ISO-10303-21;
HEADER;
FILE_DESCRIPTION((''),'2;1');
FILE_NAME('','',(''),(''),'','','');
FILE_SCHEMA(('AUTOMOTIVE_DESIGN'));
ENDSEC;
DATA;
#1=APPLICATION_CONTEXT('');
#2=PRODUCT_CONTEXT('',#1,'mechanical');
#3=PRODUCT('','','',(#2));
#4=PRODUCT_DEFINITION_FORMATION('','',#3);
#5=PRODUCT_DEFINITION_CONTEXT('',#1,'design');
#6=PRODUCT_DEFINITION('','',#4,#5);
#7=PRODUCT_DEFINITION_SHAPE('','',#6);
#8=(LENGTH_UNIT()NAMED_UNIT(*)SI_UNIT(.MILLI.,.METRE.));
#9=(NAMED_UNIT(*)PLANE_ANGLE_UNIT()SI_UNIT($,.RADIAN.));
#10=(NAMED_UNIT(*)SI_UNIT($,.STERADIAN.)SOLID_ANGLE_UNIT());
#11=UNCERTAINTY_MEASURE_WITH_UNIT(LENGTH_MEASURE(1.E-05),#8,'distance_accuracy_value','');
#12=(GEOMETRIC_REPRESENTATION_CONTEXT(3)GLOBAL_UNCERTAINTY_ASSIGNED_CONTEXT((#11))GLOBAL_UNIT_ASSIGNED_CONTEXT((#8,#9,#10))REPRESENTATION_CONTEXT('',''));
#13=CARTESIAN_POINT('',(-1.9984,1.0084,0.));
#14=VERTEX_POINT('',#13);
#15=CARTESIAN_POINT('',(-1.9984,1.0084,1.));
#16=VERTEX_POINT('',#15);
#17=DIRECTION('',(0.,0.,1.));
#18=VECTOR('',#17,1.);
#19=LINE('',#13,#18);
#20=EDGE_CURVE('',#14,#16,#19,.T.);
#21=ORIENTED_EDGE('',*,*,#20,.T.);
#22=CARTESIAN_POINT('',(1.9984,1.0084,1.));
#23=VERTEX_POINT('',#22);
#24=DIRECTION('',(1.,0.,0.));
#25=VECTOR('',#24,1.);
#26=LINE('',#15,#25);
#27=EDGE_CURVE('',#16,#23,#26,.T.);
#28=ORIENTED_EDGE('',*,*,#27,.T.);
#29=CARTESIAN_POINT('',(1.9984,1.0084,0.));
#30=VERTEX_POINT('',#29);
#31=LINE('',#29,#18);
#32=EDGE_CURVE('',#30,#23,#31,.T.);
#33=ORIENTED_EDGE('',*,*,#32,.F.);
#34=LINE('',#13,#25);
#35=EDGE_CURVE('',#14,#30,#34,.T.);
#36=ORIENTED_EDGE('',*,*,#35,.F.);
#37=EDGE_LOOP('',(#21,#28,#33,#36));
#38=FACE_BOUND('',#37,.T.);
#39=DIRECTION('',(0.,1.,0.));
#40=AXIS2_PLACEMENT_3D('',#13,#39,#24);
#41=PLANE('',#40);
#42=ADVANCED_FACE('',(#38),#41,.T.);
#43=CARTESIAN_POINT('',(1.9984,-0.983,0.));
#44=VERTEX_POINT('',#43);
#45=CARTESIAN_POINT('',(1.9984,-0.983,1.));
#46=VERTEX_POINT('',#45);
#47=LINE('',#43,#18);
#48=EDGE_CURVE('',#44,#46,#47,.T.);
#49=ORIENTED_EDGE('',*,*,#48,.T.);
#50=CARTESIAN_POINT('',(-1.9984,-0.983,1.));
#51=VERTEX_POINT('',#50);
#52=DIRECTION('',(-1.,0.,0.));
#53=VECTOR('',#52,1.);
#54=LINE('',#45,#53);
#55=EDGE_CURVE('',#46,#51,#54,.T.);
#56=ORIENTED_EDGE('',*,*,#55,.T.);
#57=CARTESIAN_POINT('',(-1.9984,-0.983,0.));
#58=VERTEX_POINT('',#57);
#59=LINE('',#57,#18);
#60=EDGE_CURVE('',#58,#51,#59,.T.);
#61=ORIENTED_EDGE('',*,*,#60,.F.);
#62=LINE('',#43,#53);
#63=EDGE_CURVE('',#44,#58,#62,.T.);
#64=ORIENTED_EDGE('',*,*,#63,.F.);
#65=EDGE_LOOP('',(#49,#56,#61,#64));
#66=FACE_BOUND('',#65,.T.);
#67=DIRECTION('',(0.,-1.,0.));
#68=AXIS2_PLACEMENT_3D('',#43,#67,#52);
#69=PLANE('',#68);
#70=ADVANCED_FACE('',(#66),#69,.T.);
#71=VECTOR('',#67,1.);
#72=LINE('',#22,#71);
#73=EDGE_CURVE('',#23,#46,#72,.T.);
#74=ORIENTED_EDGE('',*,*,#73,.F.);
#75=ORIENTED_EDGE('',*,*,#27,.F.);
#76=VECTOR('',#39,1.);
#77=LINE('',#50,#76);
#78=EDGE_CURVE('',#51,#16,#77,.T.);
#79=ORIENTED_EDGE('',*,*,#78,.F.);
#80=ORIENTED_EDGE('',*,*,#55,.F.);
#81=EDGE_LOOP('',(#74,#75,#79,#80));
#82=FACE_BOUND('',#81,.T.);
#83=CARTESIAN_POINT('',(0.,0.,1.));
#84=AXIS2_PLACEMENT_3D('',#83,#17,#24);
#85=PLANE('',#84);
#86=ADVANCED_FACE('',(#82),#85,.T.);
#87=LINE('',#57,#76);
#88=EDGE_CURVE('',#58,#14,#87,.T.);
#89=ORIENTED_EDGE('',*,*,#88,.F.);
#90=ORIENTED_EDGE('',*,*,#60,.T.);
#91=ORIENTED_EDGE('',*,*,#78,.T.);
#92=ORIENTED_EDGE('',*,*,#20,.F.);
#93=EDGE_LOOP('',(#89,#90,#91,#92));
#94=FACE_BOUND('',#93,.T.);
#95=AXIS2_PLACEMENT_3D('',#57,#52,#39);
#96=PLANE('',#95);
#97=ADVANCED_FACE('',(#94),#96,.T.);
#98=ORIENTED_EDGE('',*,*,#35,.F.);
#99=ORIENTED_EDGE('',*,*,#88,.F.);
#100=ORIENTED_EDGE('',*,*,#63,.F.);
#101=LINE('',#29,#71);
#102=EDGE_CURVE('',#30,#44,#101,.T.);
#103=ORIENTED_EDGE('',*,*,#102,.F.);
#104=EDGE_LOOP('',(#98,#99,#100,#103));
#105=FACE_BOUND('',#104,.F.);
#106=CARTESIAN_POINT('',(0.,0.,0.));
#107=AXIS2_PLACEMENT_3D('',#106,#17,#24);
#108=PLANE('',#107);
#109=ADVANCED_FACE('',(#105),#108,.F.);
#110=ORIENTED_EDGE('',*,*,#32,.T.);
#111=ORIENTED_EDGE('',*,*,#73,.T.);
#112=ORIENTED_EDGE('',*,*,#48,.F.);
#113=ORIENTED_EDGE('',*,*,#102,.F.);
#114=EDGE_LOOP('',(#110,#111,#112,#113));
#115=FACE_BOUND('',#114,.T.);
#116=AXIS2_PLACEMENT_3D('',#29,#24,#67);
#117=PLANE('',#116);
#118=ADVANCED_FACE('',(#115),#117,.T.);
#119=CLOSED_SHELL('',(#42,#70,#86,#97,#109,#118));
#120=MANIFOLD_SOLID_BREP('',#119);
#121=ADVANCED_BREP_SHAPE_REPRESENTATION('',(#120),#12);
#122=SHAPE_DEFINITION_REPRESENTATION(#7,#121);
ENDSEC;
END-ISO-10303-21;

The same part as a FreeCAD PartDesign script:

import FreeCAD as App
import Part
import Sketcher
from FreeCAD import Vector
Q = App.Units.Quantity

doc = App.newDocument("Part")
body = doc.addObject("PartDesign::Body", "Body")

sketch1 = body.newObject("Sketcher::SketchObject", "Sketch")
sketch1.AttachmentSupport = (doc.getObject("XY_Plane"), [""])
sketch1.MapMode = "FlatFace"
sketch1.addGeometry([
    Part.LineSegment(Vector(2, 1, 0), Vector(-2, 1, 0)),
    Part.LineSegment(Vector(-2, 1, 0), Vector(-2, -1, 0)),
    Part.LineSegment(Vector(-2, -1, 0), Vector(2, -1, 0)),
    Part.LineSegment(Vector(2, -1, 0), Vector(2, 1, 0)),
], False)
sketch1.addConstraint([
    Sketcher.Constraint("Coincident", 0, 2, 1, 1),
    Sketcher.Constraint("Coincident", 1, 2, 2, 1),
    Sketcher.Constraint("Coincident", 2, 2, 3, 1),
    Sketcher.Constraint("Coincident", 3, 2, 0, 1),
    Sketcher.Constraint("Horizontal", 0),
    Sketcher.Constraint("Vertical", 1),
    Sketcher.Constraint("Horizontal", 2),
    Sketcher.Constraint("Vertical", 3),
    Sketcher.Constraint("DistanceX", 0, 2, 0, 1, Q("3.9968 mm")),
    Sketcher.Constraint("DistanceY", 1, 2, 1, 1, Q("1.9914 mm")),
    Sketcher.Constraint("DistanceY", 1, 2, -1, 1, Q("0.983 mm")),
    Sketcher.Constraint("DistanceX", 0, 2, -1, 1, Q("1.9984 mm")),
])
pad1 = body.newObject("PartDesign::Pad", "Pad")
pad1.Profile = sketch1
pad1.Length = 1

doc.recompute()
